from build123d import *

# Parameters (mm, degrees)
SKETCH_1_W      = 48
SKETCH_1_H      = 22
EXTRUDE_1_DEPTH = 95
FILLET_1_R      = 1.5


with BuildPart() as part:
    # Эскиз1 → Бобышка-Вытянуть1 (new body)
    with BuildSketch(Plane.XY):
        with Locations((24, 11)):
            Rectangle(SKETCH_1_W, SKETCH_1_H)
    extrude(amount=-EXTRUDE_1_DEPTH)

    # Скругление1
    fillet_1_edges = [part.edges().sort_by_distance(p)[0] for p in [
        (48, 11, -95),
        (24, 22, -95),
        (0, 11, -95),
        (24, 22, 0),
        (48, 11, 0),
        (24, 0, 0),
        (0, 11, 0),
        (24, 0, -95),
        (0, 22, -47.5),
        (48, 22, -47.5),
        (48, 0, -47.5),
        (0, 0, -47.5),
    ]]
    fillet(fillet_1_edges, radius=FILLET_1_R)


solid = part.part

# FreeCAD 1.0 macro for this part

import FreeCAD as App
import Part
import Sketcher

V = App.Vector

doc = App.newDocument("Part")
params = doc.addObject("Spreadsheet::Sheet", "Params")
for row, (alias, value) in enumerate([
    ("sketch1_width", "48 mm"),
    ("sketch1_height", "22 mm"),
    ("pad1_length", "95 mm"),
    ("fillet_radius", "1.5 mm"),
], start=1):
    params.set(f"A{row}", alias)
    params.set(f"B{row}", "=" + value)
    params.setAlias(f"B{row}", alias)

body = doc.addObject("PartDesign::Body", "Body")

sketch1 = body.newObject("Sketcher::SketchObject", "Sketch")
sketch1.AttachmentSupport = (doc.getObject("XY_Plane"), [""])
sketch1.MapMode = "FlatFace"
sketch1.addGeometry(Part.LineSegment(V(0, 22, 0), V(0, 0, 0)), False)
sketch1.addGeometry(Part.LineSegment(V(0, 0, 0), V(48, 0, 0)), False)
sketch1.addGeometry(Part.LineSegment(V(48, 0, 0), V(48, 22, 0)), False)
sketch1.addGeometry(Part.LineSegment(V(48, 22, 0), V(0, 22, 0)), False)
sketch1.addConstraint(Sketcher.Constraint("Coincident", 0, 2, 1, 1))
sketch1.addConstraint(Sketcher.Constraint("Coincident", 1, 2, 2, 1))
sketch1.addConstraint(Sketcher.Constraint("Coincident", 2, 2, 3, 1))
sketch1.addConstraint(Sketcher.Constraint("Coincident", 3, 2, 0, 1))
sketch1.addConstraint(Sketcher.Constraint("Vertical", 0))
sketch1.addConstraint(Sketcher.Constraint("Horizontal", 1))
sketch1.addConstraint(Sketcher.Constraint("Vertical", 2))
sketch1.addConstraint(Sketcher.Constraint("Horizontal", 3))
sketch1.addConstraint(Sketcher.Constraint("Coincident", 0, 2, -1, 1))
sketch1.addConstraint(Sketcher.Constraint("DistanceX", 1, 1, 1, 2, 48.0))
sketch1.addConstraint(Sketcher.Constraint("DistanceY", 0, 2, 0, 1, 22.0))
sketch1.setExpression("Constraints[9]", "Params.sketch1_width")
sketch1.setExpression("Constraints[10]", "Params.sketch1_height")
pad1 = body.newObject("PartDesign::Pad", "Pad")
pad1.Profile = sketch1
pad1.setExpression("Length", "Params.pad1_length")
pad1.Reversed = True
doc.recompute()

fillet = body.newObject("PartDesign::Fillet", "Fillet")
fillet.Base = (pad1, ["Edge1"])
fillet.UseAllEdges = True
fillet.setExpression("Radius", "Params.fillet_radius")

doc.recompute()
